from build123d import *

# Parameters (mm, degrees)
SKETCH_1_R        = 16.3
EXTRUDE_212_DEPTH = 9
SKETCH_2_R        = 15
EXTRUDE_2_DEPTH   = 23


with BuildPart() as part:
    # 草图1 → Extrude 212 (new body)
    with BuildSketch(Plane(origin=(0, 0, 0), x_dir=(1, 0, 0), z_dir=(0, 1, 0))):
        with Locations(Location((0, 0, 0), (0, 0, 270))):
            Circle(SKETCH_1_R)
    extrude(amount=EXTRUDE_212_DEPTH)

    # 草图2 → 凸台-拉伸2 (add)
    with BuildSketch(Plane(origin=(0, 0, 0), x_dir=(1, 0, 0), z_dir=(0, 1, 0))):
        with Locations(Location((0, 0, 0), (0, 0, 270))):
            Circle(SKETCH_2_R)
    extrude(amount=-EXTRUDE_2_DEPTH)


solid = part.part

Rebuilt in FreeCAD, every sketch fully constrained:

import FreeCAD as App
import Part
import Sketcher
from FreeCAD import Vector
Q = App.Units.Quantity

doc = App.newDocument("Part")
body = doc.addObject("PartDesign::Body", "Body")

# Sketch on XZ plane
sketch1 = body.newObject("Sketcher::SketchObject", "Sketch")
sketch1.AttachmentSupport = (doc.getObject("XZ_Plane"), [""])
sketch1.MapMode = "FlatFace"
sketch1.addGeometry(Part.Circle(Vector(0, 0, 0), Vector(0, 0, 1), 16), False)
sketch1.addConstraint(Sketcher.Constraint("Coincident", 0, 3, -1, 1))
sketch1.addConstraint(Sketcher.Constraint("Diameter", 0, Q("32.6 mm")))
pad1 = body.newObject("PartDesign::Pad", "Pad")
pad1.Profile = sketch1
pad1.Length = 9
pad1.Reversed = True

# Sketch on XZ plane
sketch2 = body.newObject("Sketcher::SketchObject", "Sketch001")
sketch2.AttachmentSupport = (doc.getObject("XZ_Plane"), [""])
sketch2.MapMode = "FlatFace"
sketch2.addGeometry(Part.Circle(Vector(0, 0, 0), Vector(0, 0, 1), 15), False)
sketch2.addConstraint(Sketcher.Constraint("Coincident", 0, 3, -1, 1))
sketch2.addConstraint(Sketcher.Constraint("Diameter", 0, Q("30 mm")))
pad2 = body.newObject("PartDesign::Pad", "Pad001")
pad2.Profile = sketch2
pad2.Length = 23

doc.recompute()
